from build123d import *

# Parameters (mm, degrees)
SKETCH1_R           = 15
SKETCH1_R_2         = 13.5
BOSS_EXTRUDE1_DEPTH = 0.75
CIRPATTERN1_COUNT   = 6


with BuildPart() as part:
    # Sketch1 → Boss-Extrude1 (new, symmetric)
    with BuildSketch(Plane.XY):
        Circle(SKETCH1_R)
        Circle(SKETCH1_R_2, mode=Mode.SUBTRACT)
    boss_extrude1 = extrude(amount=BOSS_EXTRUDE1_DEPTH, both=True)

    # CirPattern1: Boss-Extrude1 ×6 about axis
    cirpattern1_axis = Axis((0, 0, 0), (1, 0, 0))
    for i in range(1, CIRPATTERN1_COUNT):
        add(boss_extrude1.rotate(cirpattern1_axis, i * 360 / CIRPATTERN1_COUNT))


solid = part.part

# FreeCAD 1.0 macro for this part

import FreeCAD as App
import Part
import Sketcher

V = App.Vector
Q = App.Units.Quantity

doc = App.newDocument("Part")
body = doc.addObject("PartDesign::Body", "Body")

# Sketch on XY plane
sketch1 = body.newObject("Sketcher::SketchObject", "Sketch")
sketch1.AttachmentSupport = (doc.getObject("XY_Plane"), [""])
sketch1.MapMode = "FlatFace"
sketch1.addGeometry(Part.Circle(V(0, 0, 0), V(0, 0, 1), 15), False)
sketch1.addGeometry(Part.Circle(V(0, 0, 0), V(0, 0, 1), 14), False)
sketch1.addConstraint(Sketcher.Constraint("Coincident", 0, 3, -1, 1))
sketch1.addConstraint(Sketcher.Constraint("Coincident", 1, 3, -1, 1))
sketch1.addConstraint(Sketcher.Constraint("Diameter", 0, Q("30 mm")))
sketch1.addConstraint(Sketcher.Constraint("Diameter", 1, Q("27 mm")))
pad1 = body.newObject("PartDesign::Pad", "Pad")
pad1.Profile = sketch1
pad1.Length = 1.5
pad1.Midplane = True
doc.recompute()

polarpattern = body.newObject("PartDesign::PolarPattern", "PolarPattern")
polarpattern.Originals = [pad1]
polarpattern.Axis = (doc.getObject("X_Axis"), [""])
polarpattern.Angle = 360
polarpattern.Occurrences = 6
body.Tip = polarpattern

doc.recompute()
